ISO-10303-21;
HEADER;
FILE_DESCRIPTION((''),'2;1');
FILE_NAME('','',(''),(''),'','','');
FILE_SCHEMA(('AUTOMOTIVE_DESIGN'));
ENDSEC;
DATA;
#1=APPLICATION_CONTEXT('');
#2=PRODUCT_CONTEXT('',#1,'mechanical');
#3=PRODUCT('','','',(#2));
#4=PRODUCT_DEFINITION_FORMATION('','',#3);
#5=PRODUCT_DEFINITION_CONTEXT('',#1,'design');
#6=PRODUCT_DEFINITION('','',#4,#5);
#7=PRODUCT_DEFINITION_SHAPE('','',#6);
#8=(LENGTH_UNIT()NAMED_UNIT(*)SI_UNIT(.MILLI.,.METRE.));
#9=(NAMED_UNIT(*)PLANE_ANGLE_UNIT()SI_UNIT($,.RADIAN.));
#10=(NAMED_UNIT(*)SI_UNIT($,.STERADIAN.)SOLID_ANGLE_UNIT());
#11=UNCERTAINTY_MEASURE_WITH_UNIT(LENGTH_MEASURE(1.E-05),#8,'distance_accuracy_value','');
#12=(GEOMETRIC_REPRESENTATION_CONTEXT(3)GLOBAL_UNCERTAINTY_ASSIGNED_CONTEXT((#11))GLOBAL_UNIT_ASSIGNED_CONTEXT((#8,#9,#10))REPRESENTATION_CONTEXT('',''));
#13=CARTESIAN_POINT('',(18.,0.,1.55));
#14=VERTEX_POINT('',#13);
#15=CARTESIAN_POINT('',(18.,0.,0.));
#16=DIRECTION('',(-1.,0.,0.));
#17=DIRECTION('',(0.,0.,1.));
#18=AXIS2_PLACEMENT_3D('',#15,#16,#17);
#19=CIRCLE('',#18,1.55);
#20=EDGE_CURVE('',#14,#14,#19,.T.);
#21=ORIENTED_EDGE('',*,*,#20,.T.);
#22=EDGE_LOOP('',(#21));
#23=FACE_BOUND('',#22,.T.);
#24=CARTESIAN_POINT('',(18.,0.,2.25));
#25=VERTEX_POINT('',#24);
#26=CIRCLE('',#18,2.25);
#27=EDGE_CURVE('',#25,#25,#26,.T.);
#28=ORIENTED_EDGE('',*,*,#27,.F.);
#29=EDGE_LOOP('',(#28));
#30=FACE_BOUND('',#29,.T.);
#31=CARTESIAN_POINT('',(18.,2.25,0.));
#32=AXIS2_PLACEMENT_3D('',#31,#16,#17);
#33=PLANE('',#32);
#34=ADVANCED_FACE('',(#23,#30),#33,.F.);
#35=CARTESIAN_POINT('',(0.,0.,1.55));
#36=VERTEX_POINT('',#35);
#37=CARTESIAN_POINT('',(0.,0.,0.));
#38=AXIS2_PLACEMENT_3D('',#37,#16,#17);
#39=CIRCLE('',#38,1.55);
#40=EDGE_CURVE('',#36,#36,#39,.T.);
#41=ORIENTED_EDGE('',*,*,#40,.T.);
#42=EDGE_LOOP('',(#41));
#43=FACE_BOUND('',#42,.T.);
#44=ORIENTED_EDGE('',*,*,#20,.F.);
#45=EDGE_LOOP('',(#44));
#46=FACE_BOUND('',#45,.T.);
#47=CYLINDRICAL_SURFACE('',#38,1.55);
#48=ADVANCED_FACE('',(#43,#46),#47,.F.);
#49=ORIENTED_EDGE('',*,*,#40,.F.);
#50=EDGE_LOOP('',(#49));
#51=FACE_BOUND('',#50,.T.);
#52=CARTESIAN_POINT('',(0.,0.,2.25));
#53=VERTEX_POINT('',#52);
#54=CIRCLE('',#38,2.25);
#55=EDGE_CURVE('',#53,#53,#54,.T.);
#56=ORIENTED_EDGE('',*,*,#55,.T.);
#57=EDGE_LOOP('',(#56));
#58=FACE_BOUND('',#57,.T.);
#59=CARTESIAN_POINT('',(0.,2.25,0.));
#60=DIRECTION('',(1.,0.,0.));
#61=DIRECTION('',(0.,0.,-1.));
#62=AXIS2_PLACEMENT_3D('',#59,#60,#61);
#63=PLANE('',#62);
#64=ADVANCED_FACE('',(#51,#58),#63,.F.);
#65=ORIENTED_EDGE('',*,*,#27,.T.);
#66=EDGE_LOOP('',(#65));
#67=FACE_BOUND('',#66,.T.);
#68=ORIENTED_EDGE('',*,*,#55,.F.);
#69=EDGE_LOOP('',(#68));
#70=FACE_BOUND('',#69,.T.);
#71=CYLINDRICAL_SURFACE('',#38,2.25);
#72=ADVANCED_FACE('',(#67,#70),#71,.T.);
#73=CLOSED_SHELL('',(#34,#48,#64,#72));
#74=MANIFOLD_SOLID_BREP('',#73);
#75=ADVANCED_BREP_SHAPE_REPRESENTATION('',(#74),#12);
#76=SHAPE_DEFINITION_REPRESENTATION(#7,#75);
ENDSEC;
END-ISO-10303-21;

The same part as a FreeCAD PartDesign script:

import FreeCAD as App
import Part
import Sketcher
from FreeCAD import Vector
Q = App.Units.Quantity

doc = App.newDocument("Part")
body = doc.addObject("PartDesign::Body", "Body")

# Sketch on XY plane
sketch1 = body.newObject("Sketcher::SketchObject", "Sketch")
sketch1.AttachmentSupport = (doc.getObject("XY_Plane"), [""])
sketch1.MapMode = "FlatFace"
sketch1.addGeometry([
    Part.LineSegment(Vector(0, 2.2, 0), Vector(0, 1.6, 0)),
    Part.LineSegment(Vector(0, 1.6, 0), Vector(18, 1.6, 0)),
    Part.LineSegment(Vector(18, 1.6, 0), Vector(18, 2.2, 0)),
    Part.LineSegment(Vector(18, 2.2, 0), Vector(0, 2.2, 0)),
], False)
sketch1.addConstraint([
    Sketcher.Constraint("Coincident", 0, 2, 1, 1),
    Sketcher.Constraint("Coincident", 1, 2, 2, 1),
    Sketcher.Constraint("Coincident", 2, 2, 3, 1),
    Sketcher.Constraint("Coincident", 3, 2, 0, 1),
    Sketcher.Constraint("Vertical", 0),
    Sketcher.Constraint("Horizontal", 1),
    Sketcher.Constraint("Vertical", 2),
    Sketcher.Constraint("Horizontal", 3),
    Sketcher.Constraint("PointOnObject", 0, 2, -2),
    Sketcher.Constraint("DistanceX", 1, 1, 1, 2, Q("18 mm")),
    Sketcher.Constraint("DistanceY", 0, 2, 0, 1, Q("0.7 mm")),
    Sketcher.Constraint("DistanceY", -1, 1, 0, 2, Q("1.55 mm")),
])
revolution = body.newObject("PartDesign::Revolution", "Revolution")
revolution.Profile = sketch1
revolution.ReferenceAxis = (sketch1, ["H_Axis"])
revolution.Angle = 360

doc.recompute()
